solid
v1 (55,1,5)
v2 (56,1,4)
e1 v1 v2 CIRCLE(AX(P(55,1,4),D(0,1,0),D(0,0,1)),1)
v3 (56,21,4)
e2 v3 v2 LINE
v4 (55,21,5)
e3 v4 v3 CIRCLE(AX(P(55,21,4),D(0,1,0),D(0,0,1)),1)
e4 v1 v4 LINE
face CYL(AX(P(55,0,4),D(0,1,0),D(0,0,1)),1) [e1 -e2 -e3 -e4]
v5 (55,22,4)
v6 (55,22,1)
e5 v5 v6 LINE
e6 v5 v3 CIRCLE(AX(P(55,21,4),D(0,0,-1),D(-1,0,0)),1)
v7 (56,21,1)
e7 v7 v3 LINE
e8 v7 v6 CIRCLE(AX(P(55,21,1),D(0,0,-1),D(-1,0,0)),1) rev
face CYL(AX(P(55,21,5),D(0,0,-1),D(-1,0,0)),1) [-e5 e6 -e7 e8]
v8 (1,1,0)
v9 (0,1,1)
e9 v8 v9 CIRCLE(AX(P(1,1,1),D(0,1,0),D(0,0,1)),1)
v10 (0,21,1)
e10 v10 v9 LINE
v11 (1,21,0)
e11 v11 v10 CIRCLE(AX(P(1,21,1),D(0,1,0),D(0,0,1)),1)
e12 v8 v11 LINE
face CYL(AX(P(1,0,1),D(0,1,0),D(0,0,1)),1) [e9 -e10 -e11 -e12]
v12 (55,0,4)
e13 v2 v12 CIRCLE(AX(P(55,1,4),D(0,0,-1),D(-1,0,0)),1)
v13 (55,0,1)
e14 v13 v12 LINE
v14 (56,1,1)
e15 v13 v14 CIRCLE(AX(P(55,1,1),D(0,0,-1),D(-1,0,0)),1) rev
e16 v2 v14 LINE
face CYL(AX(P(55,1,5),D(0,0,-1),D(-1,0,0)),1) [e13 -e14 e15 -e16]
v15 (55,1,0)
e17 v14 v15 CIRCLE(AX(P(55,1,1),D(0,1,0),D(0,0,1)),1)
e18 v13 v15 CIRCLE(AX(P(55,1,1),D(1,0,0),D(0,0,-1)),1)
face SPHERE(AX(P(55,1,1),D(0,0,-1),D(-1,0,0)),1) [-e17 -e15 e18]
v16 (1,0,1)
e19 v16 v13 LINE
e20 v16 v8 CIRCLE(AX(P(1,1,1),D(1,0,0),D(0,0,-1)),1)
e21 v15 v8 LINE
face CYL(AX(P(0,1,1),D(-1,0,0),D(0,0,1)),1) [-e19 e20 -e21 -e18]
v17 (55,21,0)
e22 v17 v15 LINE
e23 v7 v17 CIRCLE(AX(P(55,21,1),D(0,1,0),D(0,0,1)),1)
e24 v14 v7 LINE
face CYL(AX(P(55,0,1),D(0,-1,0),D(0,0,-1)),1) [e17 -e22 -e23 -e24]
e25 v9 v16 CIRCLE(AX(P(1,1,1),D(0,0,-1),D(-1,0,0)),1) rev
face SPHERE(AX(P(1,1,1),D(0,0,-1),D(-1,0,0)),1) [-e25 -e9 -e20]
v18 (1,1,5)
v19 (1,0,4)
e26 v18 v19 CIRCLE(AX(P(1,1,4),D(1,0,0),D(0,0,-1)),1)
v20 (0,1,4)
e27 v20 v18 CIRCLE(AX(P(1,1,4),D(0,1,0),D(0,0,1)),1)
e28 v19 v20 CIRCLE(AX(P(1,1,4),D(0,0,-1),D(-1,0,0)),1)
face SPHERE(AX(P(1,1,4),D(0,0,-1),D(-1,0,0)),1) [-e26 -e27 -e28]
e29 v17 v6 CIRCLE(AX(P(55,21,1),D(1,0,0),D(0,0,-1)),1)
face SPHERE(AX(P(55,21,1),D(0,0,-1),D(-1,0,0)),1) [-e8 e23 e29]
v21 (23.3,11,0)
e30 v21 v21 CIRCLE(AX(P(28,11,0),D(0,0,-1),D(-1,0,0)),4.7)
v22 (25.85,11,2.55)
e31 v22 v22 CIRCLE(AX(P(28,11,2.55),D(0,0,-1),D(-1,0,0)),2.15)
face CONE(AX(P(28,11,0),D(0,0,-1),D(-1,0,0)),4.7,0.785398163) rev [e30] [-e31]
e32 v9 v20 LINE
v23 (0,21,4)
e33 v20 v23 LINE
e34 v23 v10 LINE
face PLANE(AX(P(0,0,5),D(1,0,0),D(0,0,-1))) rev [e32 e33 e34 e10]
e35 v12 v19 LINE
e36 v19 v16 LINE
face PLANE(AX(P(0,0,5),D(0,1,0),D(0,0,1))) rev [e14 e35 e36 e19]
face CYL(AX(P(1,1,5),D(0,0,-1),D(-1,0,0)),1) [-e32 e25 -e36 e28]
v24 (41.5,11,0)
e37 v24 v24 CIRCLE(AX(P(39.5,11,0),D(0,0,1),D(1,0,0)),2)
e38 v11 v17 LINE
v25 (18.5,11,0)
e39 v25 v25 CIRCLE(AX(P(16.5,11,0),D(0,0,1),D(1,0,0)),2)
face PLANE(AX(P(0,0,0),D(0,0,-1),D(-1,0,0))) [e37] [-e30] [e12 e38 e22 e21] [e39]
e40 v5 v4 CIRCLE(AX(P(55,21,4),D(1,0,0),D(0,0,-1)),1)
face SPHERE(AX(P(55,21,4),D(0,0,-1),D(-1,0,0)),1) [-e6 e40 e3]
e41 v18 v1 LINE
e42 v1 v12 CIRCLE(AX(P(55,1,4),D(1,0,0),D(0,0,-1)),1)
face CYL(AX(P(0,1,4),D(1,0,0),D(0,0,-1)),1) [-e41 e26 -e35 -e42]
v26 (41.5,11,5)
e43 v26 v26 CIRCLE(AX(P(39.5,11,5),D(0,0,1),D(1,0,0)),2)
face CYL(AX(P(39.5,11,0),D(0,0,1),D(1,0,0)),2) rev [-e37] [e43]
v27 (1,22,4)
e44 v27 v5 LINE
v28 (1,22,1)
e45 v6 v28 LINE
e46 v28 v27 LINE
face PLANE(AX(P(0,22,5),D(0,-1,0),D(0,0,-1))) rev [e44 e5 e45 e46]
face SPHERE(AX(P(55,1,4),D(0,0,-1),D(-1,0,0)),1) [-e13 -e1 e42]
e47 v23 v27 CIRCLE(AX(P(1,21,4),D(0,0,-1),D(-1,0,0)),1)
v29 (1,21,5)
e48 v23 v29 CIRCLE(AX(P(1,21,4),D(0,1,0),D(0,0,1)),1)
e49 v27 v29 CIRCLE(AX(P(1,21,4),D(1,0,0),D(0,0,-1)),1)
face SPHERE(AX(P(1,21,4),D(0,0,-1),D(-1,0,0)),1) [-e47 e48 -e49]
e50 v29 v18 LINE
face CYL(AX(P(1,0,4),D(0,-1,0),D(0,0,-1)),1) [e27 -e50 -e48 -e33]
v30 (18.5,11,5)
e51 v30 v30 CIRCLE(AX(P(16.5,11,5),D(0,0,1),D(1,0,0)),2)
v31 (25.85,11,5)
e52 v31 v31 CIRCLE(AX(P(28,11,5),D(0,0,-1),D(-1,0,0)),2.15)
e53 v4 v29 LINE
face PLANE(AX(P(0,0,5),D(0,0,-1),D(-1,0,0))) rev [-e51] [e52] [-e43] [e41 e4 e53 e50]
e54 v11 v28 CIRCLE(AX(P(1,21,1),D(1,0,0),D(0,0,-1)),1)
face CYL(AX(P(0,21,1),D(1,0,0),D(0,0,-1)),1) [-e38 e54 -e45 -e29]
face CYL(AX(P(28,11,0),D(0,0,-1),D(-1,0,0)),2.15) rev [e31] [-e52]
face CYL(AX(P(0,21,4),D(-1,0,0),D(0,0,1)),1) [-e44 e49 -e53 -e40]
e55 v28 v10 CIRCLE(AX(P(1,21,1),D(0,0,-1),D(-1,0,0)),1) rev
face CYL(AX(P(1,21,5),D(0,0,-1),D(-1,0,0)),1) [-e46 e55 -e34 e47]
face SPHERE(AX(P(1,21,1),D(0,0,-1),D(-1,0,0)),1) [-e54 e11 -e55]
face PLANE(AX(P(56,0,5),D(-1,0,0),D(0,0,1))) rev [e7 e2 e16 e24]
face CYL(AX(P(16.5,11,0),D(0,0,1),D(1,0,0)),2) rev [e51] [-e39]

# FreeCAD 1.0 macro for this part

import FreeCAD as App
import Part
import Sketcher
Q = App.Units.Quantity


def edges_at(feature, points):
    """Names of the edges that pass closest to the given points."""
    edges = feature.Shape.Edges
    near = lambda p: min(range(len(edges)), key=lambda i: edges[i].distToShape(Part.Vertex(*p))[0])
    return sorted({f"Edge{near(p) + 1}" for p in points})

doc = App.newDocument("Part")
body = doc.addObject("PartDesign::Body", "Body")

# Sketch on XY plane
sketch1 = body.newObject("Sketcher::SketchObject", "Sketch")
sketch1.AttachmentSupport = (doc.getObject("XY_Plane"), [""])
sketch1.MapMode = "FlatFace"
sketch1.addGeometry([
    Part.LineSegment(App.Vector(0, 22, 0), App.Vector(0, 0, 0)),
    Part.LineSegment(App.Vector(0, 0, 0), App.Vector(56, 0, 0)),
    Part.LineSegment(App.Vector(56, 0, 0), App.Vector(56, 22, 0)),
    Part.LineSegment(App.Vector(56, 22, 0), App.Vector(0, 22, 0)),
], False)
sketch1.addConstraint([
    Sketcher.Constraint("Coincident", 0, 2, 1, 1),
    Sketcher.Constraint("Coincident", 1, 2, 2, 1),
    Sketcher.Constraint("Coincident", 2, 2, 3, 1),
    Sketcher.Constraint("Coincident", 3, 2, 0, 1),
    Sketcher.Constraint("Vertical", 0),
    Sketcher.Constraint("Horizontal", 1),
    Sketcher.Constraint("Vertical", 2),
    Sketcher.Constraint("Horizontal", 3),
    Sketcher.Constraint("Coincident", 0, 2, -1, 1),
    Sketcher.Constraint("DistanceX", 1, 1, 1, 2, Q("56 mm")),
    Sketcher.Constraint("DistanceY", 0, 2, 0, 1, Q("22 mm")),
])
pad1 = body.newObject("PartDesign::Pad", "Pad")
pad1.Profile = sketch1
pad1.Length = 5

# Sketch on XY plane
sketch2 = body.newObject("Sketcher::SketchObject", "Sketch001")
sketch2.AttachmentSupport = (doc.getObject("XY_Plane"), [""])
sketch2.MapMode = "FlatFace"
sketch2.AttachmentOffset = App.Placement(App.Vector(0, 0, 5), App.Rotation())
sketch2.addGeometry([
    Part.Circle(App.Vector(16.5, 11, 0), App.Vector(0, 0, 1), 2),
    Part.Circle(App.Vector(39.5, 11, 0), App.Vector(0, 0, 1), 2),
], False)
sketch2.addConstraint([
    Sketcher.Constraint("Equal", 0, 1),
    Sketcher.Constraint("Horizontal", 0, 3, 1, 3),
    Sketcher.Constraint("Diameter", 0, Q("4 mm")),
    Sketcher.Constraint("DistanceY", -1, 1, 0, 3, Q("11 mm")),
    Sketcher.Constraint("DistanceX", 0, 3, 1, 3, Q("23 mm")),
    Sketcher.Constraint("DistanceX", -1, 1, 0, 3, Q("16.5 mm")),
])
pocket1 = body.newObject("PartDesign::Pocket", "Pocket")
pocket1.Profile = sketch2
pocket1.Type = "ThroughAll"
doc.recompute()

fillet = body.newObject("PartDesign::Fillet", "Fillet")
fillet.Base = (pocket1, edges_at(pocket1, [
    (0, 22, 2.5),
    (56, 22, 2.5),
    (56, 0, 2.5),
    (0, 0, 2.5),
]))
fillet.Radius = 1
doc.recompute()

fillet2 = body.newObject("PartDesign::Fillet", "Fillet001")
fillet2.Base = (fillet, edges_at(fillet, [
    (28, 22, 0),
    (28, 22, 5),
    (0, 11, 0),
    (56, 11, 0),
    (28, 0, 0),
    (0.293, 21.707, 0),
    (0.293, 0.293, 0),
    (55.707, 0.293, 0),
    (55.707, 21.707, 0),
    (56, 11, 5),
    (0, 11, 5),
    (28, 0, 5),
    (0.293, 21.707, 5),
    (0.293, 0.293, 5),
    (55.707, 0.293, 5),
    (55.707, 21.707, 5),
]))
fillet2.Radius = 1

# Sketch on XY plane
sketch3 = body.newObject("Sketcher::SketchObject", "Sketch002")
sketch3.AttachmentSupport = (doc.getObject("XY_Plane"), [""])
sketch3.MapMode = "FlatFace"
sketch3.addGeometry(Part.Circle(App.Vector(28, 11, 0), App.Vector(0, 0, 1), 2.1), False)
sketch3.addConstraint([
    Sketcher.Constraint("Diameter", 0, Q("4.3 mm")),
    Sketcher.Constraint("DistanceX", -1, 1, 0, 3, Q("28 mm")),
    Sketcher.Constraint("DistanceY", -1, 1, 0, 3, Q("11 mm")),
])
doc.recompute()
hole = body.newObject("PartDesign::Hole", "Hole")
hole.Profile = sketch3
hole.ThreadType = "None"
hole.Diameter = 4.3
hole.DepthType = "ThroughAll"
hole.HoleCutType = "Countersink"
hole.HoleCutDiameter = 9.4
hole.HoleCutCountersinkAngle = 90
hole.Reversed = True

doc.recompute()
